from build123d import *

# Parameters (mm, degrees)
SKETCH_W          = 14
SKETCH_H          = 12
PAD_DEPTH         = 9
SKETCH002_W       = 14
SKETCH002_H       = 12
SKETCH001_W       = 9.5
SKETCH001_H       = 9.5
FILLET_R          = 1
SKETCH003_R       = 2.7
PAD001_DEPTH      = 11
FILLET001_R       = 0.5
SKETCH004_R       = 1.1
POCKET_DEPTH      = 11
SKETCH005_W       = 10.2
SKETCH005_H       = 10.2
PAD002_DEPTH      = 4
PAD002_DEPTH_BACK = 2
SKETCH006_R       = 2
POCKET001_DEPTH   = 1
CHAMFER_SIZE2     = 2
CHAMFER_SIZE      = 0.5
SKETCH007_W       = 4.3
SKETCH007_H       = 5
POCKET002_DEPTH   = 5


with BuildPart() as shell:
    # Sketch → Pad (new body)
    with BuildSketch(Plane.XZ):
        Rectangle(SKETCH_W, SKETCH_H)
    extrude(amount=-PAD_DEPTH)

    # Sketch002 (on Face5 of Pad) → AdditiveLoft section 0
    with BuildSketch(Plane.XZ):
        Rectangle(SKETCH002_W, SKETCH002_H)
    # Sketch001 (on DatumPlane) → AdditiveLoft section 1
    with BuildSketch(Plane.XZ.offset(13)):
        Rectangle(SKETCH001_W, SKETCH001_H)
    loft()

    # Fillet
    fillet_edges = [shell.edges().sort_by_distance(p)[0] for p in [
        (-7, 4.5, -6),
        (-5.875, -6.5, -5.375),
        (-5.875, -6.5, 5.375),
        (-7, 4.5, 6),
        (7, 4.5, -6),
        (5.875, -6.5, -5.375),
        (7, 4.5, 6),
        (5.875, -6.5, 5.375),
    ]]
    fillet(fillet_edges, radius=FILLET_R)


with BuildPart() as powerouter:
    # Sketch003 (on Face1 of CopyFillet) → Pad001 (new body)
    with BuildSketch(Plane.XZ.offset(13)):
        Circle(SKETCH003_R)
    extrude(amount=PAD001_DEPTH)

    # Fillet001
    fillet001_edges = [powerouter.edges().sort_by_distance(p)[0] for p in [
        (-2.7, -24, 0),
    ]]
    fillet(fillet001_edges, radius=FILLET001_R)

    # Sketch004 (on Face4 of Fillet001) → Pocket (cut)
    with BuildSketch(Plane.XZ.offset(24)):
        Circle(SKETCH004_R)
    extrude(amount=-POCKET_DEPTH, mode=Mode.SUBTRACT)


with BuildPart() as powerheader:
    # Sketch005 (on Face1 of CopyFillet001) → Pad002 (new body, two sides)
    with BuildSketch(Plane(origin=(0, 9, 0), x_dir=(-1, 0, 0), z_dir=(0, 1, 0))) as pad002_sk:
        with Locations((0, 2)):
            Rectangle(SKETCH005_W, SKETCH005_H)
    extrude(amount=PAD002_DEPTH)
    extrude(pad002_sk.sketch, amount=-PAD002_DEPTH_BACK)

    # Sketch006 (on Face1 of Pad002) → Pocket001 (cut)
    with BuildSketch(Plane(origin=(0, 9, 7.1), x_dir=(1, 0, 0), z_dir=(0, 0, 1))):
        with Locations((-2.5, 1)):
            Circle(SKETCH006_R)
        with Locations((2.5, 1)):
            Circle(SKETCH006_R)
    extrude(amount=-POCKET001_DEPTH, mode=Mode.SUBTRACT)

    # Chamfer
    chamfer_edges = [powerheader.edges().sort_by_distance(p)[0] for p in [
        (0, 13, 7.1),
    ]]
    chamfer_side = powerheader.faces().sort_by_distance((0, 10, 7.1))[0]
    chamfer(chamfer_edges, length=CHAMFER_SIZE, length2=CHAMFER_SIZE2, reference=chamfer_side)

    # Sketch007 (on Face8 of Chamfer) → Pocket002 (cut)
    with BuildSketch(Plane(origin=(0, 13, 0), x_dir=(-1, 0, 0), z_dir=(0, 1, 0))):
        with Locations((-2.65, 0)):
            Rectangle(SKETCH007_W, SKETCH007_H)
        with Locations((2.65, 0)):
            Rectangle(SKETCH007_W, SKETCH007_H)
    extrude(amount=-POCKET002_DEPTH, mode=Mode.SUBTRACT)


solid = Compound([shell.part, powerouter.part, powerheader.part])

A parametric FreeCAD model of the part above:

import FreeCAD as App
import Part
import Sketcher

V = App.Vector


def edges_at(feature, points):
    """Names of the edges that pass closest to the given points."""
    edges = feature.Shape.Edges
    near = lambda p: min(range(len(edges)), key=lambda i: edges[i].distToShape(Part.Vertex(*p))[0])
    return sorted({f"Edge{near(p) + 1}" for p in points})

doc = App.newDocument("Part")
body = doc.addObject("PartDesign::Body", "Body")

sketch1 = doc.addObject("Sketcher::SketchObject", "Sketch")
body.addObject(sketch1)
sketch1.AttachmentSupport = (doc.XZ_Plane, [""])
sketch1.MapMode = "FlatFace"
sketch1.addGeometry(Part.LineSegment(V(-7, 6, 0), V(-7, -6, 0)), False)
sketch1.addGeometry(Part.LineSegment(V(-7, -6, 0), V(7, -6, 0)), False)
sketch1.addGeometry(Part.LineSegment(V(7, -6, 0), V(7, 6, 0)), False)
sketch1.addGeometry(Part.LineSegment(V(7, 6, 0), V(-7, 6, 0)), False)
sketch1.addConstraint(Sketcher.Constraint("Coincident", 0, 2, 1, 1))
sketch1.addConstraint(Sketcher.Constraint("Coincident", 1, 2, 2, 1))
sketch1.addConstraint(Sketcher.Constraint("Coincident", 2, 2, 3, 1))
sketch1.addConstraint(Sketcher.Constraint("Coincident", 3, 2, 0, 1))
sketch1.addConstraint(Sketcher.Constraint("Vertical", 0))
sketch1.addConstraint(Sketcher.Constraint("Horizontal", 1))
sketch1.addConstraint(Sketcher.Constraint("Vertical", 2))
sketch1.addConstraint(Sketcher.Constraint("Horizontal", 3))
sketch1.addConstraint(Sketcher.Constraint("Symmetric", 0, 2, 2, 2, -1, 1))
sketch1.addConstraint(Sketcher.Constraint("DistanceX", 1, 1, 1, 2, 14.0))
sketch1.addConstraint(Sketcher.Constraint("DistanceY", 0, 2, 0, 1, 12.0))
pad1 = doc.addObject("PartDesign::Pad", "Pad")
body.addObject(pad1)
pad1.Profile = sketch1
pad1.Length = 9
pad1.Reversed = True

sketch2 = doc.addObject("Sketcher::SketchObject", "Sketch001")
body.addObject(sketch2)
sketch2.AttachmentSupport = (doc.XZ_Plane, [""])
sketch2.MapMode = "FlatFace"
sketch2.addGeometry(Part.LineSegment(V(-7, 6, 0), V(-7, -6, 0)), False)
sketch2.addGeometry(Part.LineSegment(V(-7, -6, 0), V(7, -6, 0)), False)
sketch2.addGeometry(Part.LineSegment(V(7, -6, 0), V(7, 6, 0)), False)
sketch2.addGeometry(Part.LineSegment(V(7, 6, 0), V(-7, 6, 0)), False)
sketch2.addConstraint(Sketcher.Constraint("Coincident", 0, 2, 1, 1))
sketch2.addConstraint(Sketcher.Constraint("Coincident", 1, 2, 2, 1))
sketch2.addConstraint(Sketcher.Constraint("Coincident", 2, 2, 3, 1))
sketch2.addConstraint(Sketcher.Constraint("Coincident", 3, 2, 0, 1))
sketch2.addConstraint(Sketcher.Constraint("Vertical", 0))
sketch2.addConstraint(Sketcher.Constraint("Horizontal", 1))
sketch2.addConstraint(Sketcher.Constraint("Vertical", 2))
sketch2.addConstraint(Sketcher.Constraint("Horizontal", 3))
sketch2.addConstraint(Sketcher.Constraint("Symmetric", 0, 2, 2, 2, -1, 1))
sketch2.addConstraint(Sketcher.Constraint("DistanceX", 1, 1, 1, 2, 14.0))
sketch2.addConstraint(Sketcher.Constraint("DistanceY", 0, 2, 0, 1, 12.0))

sketch3 = doc.addObject("Sketcher::SketchObject", "Sketch002")
body.addObject(sketch3)
sketch3.AttachmentSupport = (doc.XZ_Plane, [""])
sketch3.MapMode = "FlatFace"
sketch3.AttachmentOffset = App.Placement(V(0, 0, 13), App.Rotation())
sketch3.addGeometry(Part.LineSegment(V(-4.75, 4.75, 0), V(-4.75, -4.75, 0)), False)
sketch3.addGeometry(Part.LineSegment(V(-4.75, -4.75, 0), V(4.75, -4.75, 0)), False)
sketch3.addGeometry(Part.LineSegment(V(4.75, -4.75, 0), V(4.75, 4.75, 0)), False)
sketch3.addGeometry(Part.LineSegment(V(4.75, 4.75, 0), V(-4.75, 4.75, 0)), False)
sketch3.addConstraint(Sketcher.Constraint("Coincident", 0, 2, 1, 1))
sketch3.addConstraint(Sketcher.Constraint("Coincident", 1, 2, 2, 1))
sketch3.addConstraint(Sketcher.Constraint("Coincident", 2, 2, 3, 1))
sketch3.addConstraint(Sketcher.Constraint("Coincident", 3, 2, 0, 1))
sketch3.addConstraint(Sketcher.Constraint("Vertical", 0))
sketch3.addConstraint(Sketcher.Constraint("Horizontal", 1))
sketch3.addConstraint(Sketcher.Constraint("Vertical", 2))
sketch3.addConstraint(Sketcher.Constraint("Horizontal", 3))
sketch3.addConstraint(Sketcher.Constraint("Symmetric", 0, 2, 2, 2, -1, 1))
sketch3.addConstraint(Sketcher.Constraint("Equal", 3, 0))
sketch3.addConstraint(Sketcher.Constraint("DistanceX", 1, 1, 1, 2, 9.5))

additiveloft = doc.addObject("PartDesign::AdditiveLoft", "AdditiveLoft")
body.addObject(additiveloft)
additiveloft.Profile = sketch2
additiveloft.Sections = [sketch3]
doc.recompute()

fillet = doc.addObject("PartDesign::Fillet", "Fillet")
body.addObject(fillet)
fillet.Base = (additiveloft, edges_at(additiveloft, [
    (-7, 4.5, -6),
    (-5.875, -6.5, -5.375),
    (-5.875, -6.5, 5.375),
    (-7, 4.5, 6),
    (7, 4.5, -6),
    (5.875, -6.5, -5.375),
    (7, 4.5, 6),
    (5.875, -6.5, 5.375),
]))
fillet.Radius = 1
body2 = doc.addObject("PartDesign::Body", "Body001")

sketch4 = doc.addObject("Sketcher::SketchObject", "Sketch003")
body2.addObject(sketch4)
sketch4.AttachmentSupport = (doc.getObject("XZ_Plane001"), [""])
sketch4.MapMode = "FlatFace"
sketch4.AttachmentOffset = App.Placement(V(0, 0, 13), App.Rotation())
sketch4.addGeometry(Part.Circle(V(0, 0, 0), V(0, 0, 1), 2.7), False)
sketch4.addConstraint(Sketcher.Constraint("Coincident", 0, 3, -1, 1))
sketch4.addConstraint(Sketcher.Constraint("Diameter", 0, 5.4))
pad2 = doc.addObject("PartDesign::Pad", "Pad001")
body2.addObject(pad2)
pad2.Profile = sketch4
pad2.Length = 11
doc.recompute()

fillet2 = doc.addObject("PartDesign::Fillet", "Fillet001")
body2.addObject(fillet2)
fillet2.Base = (pad2, edges_at(pad2, [(-2.7, -24, 0)]))
fillet2.Radius = 0.5

sketch5 = doc.addObject("Sketcher::SketchObject", "Sketch004")
body2.addObject(sketch5)
sketch5.AttachmentSupport = (doc.getObject("XZ_Plane001"), [""])
sketch5.MapMode = "FlatFace"
sketch5.AttachmentOffset = App.Placement(V(0, 0, 24), App.Rotation())
sketch5.addGeometry(Part.Circle(V(0, 0, 0), V(0, 0, 1), 1.1), False)
sketch5.addConstraint(Sketcher.Constraint("Coincident", 0, 3, -1, 1))
sketch5.addConstraint(Sketcher.Constraint("Diameter", 0, 2.2))
pocket1 = doc.addObject("PartDesign::Pocket", "Pocket")
body2.addObject(pocket1)
pocket1.Profile = sketch5
pocket1.Length = 11
body3 = doc.addObject("PartDesign::Body", "Body002")

sketch6 = doc.addObject("Sketcher::SketchObject", "Sketch005")
body3.addObject(sketch6)
sketch6.AttachmentSupport = (doc.getObject("XZ_Plane002"), [""])
sketch6.MapMode = "FlatFace"
sketch6.AttachmentOffset = App.Placement(V(0, 0, -9), App.Rotation())
sketch6.addGeometry(Part.LineSegment(V(5.1, 7.1, 0), V(5.1, -3.1, 0)), False)
sketch6.addGeometry(Part.LineSegment(V(5.1, -3.1, 0), V(-5.1, -3.1, 0)), False)
sketch6.addGeometry(Part.LineSegment(V(-5.1, -3.1, 0), V(-5.1, 7.1, 0)), False)
sketch6.addGeometry(Part.LineSegment(V(-5.1, 7.1, 0), V(5.1, 7.1, 0)), False)
sketch6.addConstraint(Sketcher.Constraint("Coincident", 0, 2, 1, 1))
sketch6.addConstraint(Sketcher.Constraint("Coincident", 1, 2, 2, 1))
sketch6.addConstraint(Sketcher.Constraint("Coincident", 2, 2, 3, 1))
sketch6.addConstraint(Sketcher.Constraint("Coincident", 3, 2, 0, 1))
sketch6.addConstraint(Sketcher.Constraint("Vertical", 0))
sketch6.addConstraint(Sketcher.Constraint("Horizontal", 1))
sketch6.addConstraint(Sketcher.Constraint("Vertical", 2))
sketch6.addConstraint(Sketcher.Constraint("Horizontal", 3))
sketch6.addConstraint(Sketcher.Constraint("Equal", 3, 0))
sketch6.addConstraint(Sketcher.Constraint("DistanceX", 1, 2, 1, 1, 10.2))
sketch6.addConstraint(Sketcher.Constraint("DistanceX", -1, 1, 0, 2, 5.1))
sketch6.addConstraint(Sketcher.Constraint("DistanceY", 0, 2, -1, 1, 3.1))
pad3 = doc.addObject("PartDesign::Pad", "Pad002")
body3.addObject(pad3)
pad3.Profile = sketch6
pad3.Type = "TwoLengths"
pad3.Length = 4
pad3.Length2 = 2
pad3.Reversed = True

sketch7 = doc.addObject("Sketcher::SketchObject", "Sketch006")
body3.addObject(sketch7)
sketch7.AttachmentSupport = (doc.getObject("XY_Plane002"), [""])
sketch7.MapMode = "FlatFace"
sketch7.AttachmentOffset = App.Placement(V(0, 0, 7.1), App.Rotation())
sketch7.addGeometry(Part.Circle(V(-2.5, 10, 0), V(0, 0, 1), 2), False)
sketch7.addGeometry(Part.Circle(V(2.5, 10, 0), V(0, 0, 1), 2), False)
sketch7.addConstraint(Sketcher.Constraint("Equal", 0, 1))
sketch7.addConstraint(Sketcher.Constraint("Symmetric", 0, 3, 1, 3, -2))
sketch7.addConstraint(Sketcher.Constraint("Diameter", 0, 4.0))
sketch7.addConstraint(Sketcher.Constraint("DistanceY", -1, 1, 0, 3, 10.0))
sketch7.addConstraint(Sketcher.Constraint("DistanceX", 0, 3, 1, 3, 5.0))
pocket2 = doc.addObject("PartDesign::Pocket", "Pocket001")
body3.addObject(pocket2)
pocket2.Profile = sketch7
pocket2.Length = 1
doc.recompute()

chamfer = doc.addObject("PartDesign::Chamfer", "Chamfer")
body3.addObject(chamfer)
chamfer.Base = (pocket2, edges_at(pocket2, [(0, 13, 7.1)]))
chamfer.ChamferType = "Two distances"
chamfer.Size = 0.5
chamfer.Size2 = 2

sketch8 = doc.addObject("Sketcher::SketchObject", "Sketch007")
body3.addObject(sketch8)
sketch8.AttachmentSupport = (doc.getObject("XZ_Plane002"), [""])
sketch8.MapMode = "FlatFace"
sketch8.AttachmentOffset = App.Placement(V(0, 0, -13), App.Rotation())
sketch8.addGeometry(Part.LineSegment(V(4.8, 2.5, 0), V(4.8, -2.5, 0)), False)
sketch8.addGeometry(Part.LineSegment(V(4.8, -2.5, 0), V(0.5, -2.5, 0)), False)
sketch8.addGeometry(Part.LineSegment(V(0.5, -2.5, 0), V(0.5, 2.5, 0)), False)
sketch8.addGeometry(Part.LineSegment(V(0.5, 2.5, 0), V(4.8, 2.5, 0)), False)
sketch8.addGeometry(Part.LineSegment(V(-0.5, 2.5, 0), V(-0.5, -2.5, 0)), False)
sketch8.addGeometry(Part.LineSegment(V(-0.5, -2.5, 0), V(-4.8, -2.5, 0)), False)
sketch8.addGeometry(Part.LineSegment(V(-4.8, -2.5, 0), V(-4.8, 2.5, 0)), False)
sketch8.addGeometry(Part.LineSegment(V(-4.8, 2.5, 0), V(-0.5, 2.5, 0)), False)
sketch8.addConstraint(Sketcher.Constraint("Coincident", 0, 2, 1, 1))
sketch8.addConstraint(Sketcher.Constraint("Coincident", 1, 2, 2, 1))
sketch8.addConstraint(Sketcher.Constraint("Coincident", 2, 2, 3, 1))
sketch8.addConstraint(Sketcher.Constraint("Coincident", 3, 2, 0, 1))
sketch8.addConstraint(Sketcher.Constraint("Coincident", 4, 2, 5, 1))
sketch8.addConstraint(Sketcher.Constraint("Coincident", 5, 2, 6, 1))
sketch8.addConstraint(Sketcher.Constraint("Coincident", 6, 2, 7, 1))
sketch8.addConstraint(Sketcher.Constraint("Coincident", 7, 2, 4, 1))
sketch8.addConstraint(Sketcher.Constraint("Vertical", 0))
sketch8.addConstraint(Sketcher.Constraint("Horizontal", 1))
sketch8.addConstraint(Sketcher.Constraint("Vertical", 2))
sketch8.addConstraint(Sketcher.Constraint("Horizontal", 3))
sketch8.addConstraint(Sketcher.Constraint("Vertical", 4))
sketch8.addConstraint(Sketcher.Constraint("Horizontal", 5))
sketch8.addConstraint(Sketcher.Constraint("Vertical", 6))
sketch8.addConstraint(Sketcher.Constraint("Horizontal", 7))
sketch8.addConstraint(Sketcher.Constraint("Symmetric", 2, 2, 4, 2, -1, 1))
sketch8.addConstraint(Sketcher.Constraint("Symmetric", 0, 2, 6, 2, -1, 1))
sketch8.addConstraint(Sketcher.Constraint("Horizontal", 1, 2, 4, 2))
sketch8.addConstraint(Sketcher.Constraint("DistanceY", 0, 2, 0, 1, 5.0))
sketch8.addConstraint(Sketcher.Constraint("DistanceX", 1, 2, 1, 1, 4.3))
sketch8.addConstraint(Sketcher.Constraint("DistanceX", 4, 2, 1, 2, 1.0))
pocket3 = doc.addObject("PartDesign::Pocket", "Pocket002")
body3.addObject(pocket3)
pocket3.Profile = sketch8
pocket3.Length = 5
pocket3.Reversed = True

doc.recompute()
